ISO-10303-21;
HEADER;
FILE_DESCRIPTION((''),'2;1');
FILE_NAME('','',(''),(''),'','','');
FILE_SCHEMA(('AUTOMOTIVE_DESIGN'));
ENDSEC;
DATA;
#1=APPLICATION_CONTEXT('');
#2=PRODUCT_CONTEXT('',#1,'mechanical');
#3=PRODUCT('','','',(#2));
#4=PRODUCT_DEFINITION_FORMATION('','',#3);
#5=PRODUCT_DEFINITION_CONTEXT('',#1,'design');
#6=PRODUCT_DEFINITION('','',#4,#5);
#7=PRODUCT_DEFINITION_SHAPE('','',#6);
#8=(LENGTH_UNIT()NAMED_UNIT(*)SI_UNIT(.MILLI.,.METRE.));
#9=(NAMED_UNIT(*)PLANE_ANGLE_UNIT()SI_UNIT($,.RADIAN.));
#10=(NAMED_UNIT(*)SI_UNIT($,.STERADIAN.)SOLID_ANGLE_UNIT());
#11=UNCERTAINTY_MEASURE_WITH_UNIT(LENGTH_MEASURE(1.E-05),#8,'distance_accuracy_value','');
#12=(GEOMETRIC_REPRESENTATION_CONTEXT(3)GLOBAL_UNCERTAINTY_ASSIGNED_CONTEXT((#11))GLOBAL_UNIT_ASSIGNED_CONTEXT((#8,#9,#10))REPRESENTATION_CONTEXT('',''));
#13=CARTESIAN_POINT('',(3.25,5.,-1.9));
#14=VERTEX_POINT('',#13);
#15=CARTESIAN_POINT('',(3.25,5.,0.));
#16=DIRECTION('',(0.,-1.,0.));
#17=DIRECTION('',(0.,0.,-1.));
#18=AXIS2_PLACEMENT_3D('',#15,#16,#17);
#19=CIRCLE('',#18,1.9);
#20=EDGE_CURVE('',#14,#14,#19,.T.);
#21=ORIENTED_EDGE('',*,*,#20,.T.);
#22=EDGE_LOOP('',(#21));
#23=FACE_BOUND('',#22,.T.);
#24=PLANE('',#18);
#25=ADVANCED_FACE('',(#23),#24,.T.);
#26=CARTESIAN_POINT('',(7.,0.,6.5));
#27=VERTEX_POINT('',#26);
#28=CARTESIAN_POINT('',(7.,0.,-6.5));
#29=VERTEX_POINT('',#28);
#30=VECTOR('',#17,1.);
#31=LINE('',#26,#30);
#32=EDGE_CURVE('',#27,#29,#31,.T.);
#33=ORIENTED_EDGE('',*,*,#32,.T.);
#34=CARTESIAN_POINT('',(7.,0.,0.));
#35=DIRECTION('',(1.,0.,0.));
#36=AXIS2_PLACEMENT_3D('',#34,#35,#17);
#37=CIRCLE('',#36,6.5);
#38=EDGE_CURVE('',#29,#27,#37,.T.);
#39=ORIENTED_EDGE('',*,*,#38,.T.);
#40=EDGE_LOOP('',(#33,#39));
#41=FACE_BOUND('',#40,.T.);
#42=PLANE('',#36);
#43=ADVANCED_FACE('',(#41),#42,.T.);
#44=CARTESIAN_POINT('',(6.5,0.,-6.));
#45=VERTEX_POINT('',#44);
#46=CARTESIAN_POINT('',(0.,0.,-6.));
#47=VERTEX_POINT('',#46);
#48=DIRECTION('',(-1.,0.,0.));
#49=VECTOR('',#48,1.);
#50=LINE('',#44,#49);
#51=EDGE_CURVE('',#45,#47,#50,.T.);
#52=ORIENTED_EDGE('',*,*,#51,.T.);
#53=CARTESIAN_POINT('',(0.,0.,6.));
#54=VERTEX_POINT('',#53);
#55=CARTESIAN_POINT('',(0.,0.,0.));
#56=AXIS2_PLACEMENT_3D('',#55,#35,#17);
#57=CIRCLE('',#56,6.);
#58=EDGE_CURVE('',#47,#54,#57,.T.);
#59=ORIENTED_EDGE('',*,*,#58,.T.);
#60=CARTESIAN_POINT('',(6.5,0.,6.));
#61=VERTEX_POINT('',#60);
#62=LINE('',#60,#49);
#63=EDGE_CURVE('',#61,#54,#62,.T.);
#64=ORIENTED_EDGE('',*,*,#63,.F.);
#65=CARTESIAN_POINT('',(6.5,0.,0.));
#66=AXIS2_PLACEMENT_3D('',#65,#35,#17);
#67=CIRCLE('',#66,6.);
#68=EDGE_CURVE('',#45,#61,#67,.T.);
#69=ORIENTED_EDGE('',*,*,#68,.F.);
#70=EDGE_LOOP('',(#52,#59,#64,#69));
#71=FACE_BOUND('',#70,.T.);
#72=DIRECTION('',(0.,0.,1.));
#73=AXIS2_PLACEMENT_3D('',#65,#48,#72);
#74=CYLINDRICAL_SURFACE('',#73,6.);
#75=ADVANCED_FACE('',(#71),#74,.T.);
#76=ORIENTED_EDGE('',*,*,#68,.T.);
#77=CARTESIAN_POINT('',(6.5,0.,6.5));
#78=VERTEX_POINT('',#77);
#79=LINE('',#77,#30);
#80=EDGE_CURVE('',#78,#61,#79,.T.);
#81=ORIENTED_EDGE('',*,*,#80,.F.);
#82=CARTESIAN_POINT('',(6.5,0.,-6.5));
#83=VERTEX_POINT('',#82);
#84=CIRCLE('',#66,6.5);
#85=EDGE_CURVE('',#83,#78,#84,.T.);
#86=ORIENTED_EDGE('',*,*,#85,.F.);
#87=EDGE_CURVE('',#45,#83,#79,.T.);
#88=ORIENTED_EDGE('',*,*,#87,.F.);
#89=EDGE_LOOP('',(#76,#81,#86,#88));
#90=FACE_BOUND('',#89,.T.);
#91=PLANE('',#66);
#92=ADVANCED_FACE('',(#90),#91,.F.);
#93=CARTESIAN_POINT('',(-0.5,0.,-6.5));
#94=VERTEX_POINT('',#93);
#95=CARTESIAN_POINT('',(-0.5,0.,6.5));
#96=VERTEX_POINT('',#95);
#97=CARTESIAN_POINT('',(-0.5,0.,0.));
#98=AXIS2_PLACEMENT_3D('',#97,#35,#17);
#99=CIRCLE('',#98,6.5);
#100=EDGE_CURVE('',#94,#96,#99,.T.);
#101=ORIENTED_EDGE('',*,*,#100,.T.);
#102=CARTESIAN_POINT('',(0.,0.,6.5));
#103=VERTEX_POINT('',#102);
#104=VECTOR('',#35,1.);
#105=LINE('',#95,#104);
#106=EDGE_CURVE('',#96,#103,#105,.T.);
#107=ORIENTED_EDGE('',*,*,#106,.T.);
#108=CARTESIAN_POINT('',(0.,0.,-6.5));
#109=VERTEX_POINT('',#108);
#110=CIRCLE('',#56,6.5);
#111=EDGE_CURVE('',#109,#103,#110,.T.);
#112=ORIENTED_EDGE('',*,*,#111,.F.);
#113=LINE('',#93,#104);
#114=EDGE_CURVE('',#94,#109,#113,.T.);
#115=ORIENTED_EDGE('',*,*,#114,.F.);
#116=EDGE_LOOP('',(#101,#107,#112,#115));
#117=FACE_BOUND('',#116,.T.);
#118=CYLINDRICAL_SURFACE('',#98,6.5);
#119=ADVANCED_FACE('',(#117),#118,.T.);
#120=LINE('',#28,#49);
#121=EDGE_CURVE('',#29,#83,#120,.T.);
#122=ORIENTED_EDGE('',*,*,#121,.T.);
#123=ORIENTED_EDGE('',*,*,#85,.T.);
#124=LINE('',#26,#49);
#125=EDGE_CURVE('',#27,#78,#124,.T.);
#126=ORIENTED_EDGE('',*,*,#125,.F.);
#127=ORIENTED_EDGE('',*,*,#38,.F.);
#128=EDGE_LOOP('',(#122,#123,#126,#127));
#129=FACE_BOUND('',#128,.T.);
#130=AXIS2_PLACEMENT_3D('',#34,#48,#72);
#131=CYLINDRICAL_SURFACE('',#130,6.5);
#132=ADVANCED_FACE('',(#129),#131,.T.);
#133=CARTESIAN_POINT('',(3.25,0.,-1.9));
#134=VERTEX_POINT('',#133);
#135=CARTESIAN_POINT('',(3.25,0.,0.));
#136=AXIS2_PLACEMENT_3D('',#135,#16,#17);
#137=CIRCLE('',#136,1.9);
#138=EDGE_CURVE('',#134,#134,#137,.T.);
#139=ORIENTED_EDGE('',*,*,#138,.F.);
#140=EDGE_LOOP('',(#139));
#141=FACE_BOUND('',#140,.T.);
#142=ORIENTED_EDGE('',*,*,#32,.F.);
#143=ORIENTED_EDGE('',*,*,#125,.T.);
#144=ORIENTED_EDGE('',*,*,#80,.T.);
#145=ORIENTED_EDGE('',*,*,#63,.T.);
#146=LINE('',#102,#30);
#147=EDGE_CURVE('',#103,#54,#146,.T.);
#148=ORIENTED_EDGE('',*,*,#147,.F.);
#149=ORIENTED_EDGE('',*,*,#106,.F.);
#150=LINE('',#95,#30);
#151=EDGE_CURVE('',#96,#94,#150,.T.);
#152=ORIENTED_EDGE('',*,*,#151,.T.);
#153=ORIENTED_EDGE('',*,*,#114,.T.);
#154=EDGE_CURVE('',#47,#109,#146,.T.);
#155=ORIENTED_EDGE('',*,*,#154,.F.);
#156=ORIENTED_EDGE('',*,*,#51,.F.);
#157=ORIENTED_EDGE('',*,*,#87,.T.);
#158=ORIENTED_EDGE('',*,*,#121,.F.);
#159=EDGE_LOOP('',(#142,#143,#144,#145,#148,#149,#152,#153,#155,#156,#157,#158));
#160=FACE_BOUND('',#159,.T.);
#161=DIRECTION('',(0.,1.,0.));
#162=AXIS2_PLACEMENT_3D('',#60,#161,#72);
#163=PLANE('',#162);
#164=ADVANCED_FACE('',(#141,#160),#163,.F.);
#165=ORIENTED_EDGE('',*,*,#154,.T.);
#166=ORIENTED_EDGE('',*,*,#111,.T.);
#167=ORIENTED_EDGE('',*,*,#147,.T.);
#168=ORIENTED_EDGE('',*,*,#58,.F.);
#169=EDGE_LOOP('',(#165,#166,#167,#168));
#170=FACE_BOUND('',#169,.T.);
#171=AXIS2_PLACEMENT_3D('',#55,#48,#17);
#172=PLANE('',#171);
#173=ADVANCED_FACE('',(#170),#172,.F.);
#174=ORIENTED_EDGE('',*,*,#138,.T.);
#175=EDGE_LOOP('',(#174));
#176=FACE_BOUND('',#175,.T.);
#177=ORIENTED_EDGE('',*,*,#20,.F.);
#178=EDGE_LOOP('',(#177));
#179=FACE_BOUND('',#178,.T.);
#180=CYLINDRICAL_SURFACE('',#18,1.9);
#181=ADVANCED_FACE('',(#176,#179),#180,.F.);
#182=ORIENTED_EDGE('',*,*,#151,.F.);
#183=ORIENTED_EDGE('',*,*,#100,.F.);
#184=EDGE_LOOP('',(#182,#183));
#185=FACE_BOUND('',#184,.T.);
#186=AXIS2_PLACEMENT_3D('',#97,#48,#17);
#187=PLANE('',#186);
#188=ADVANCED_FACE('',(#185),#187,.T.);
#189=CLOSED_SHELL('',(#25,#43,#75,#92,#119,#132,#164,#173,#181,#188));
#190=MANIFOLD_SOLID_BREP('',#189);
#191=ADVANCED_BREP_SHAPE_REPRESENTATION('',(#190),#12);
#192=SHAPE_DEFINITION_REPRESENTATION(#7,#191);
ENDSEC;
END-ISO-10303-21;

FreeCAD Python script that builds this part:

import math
import FreeCAD as App
import Part
import Sketcher
Q = App.Units.Quantity

doc = App.newDocument("Part")
params = doc.addObject("Spreadsheet::Sheet", "Params")
for row, (alias, value) in enumerate([
    ("sketch1_radius", "6 mm"),
    ("pad1_length", "6.5 mm"),
    ("sketch2_radius", "6.5 mm"),
    ("pad2_length", "0.5 mm"),
    ("sketch3_diameter", "3.8 mm"),
    ("pocket1_length", "5 mm"),
], start=1):
    params.set(f"A{row}", alias)
    params.set(f"B{row}", "=" + value)
    params.setAlias(f"B{row}", alias)

body = doc.addObject("PartDesign::Body", "Body")

# Sketch on YZ plane
sketch1 = body.newObject("Sketcher::SketchObject", "Sketch")
sketch1.AttachmentSupport = (doc.getObject("YZ_Plane"), [""])
sketch1.MapMode = "FlatFace"
sketch1.addGeometry(Part.LineSegment(App.Vector(0, 6, 0), App.Vector(0, -6, 0)), False)
sketch1.addGeometry(Part.ArcOfCircle(Part.Circle(App.Vector(0, 0, 0), App.Vector(0, 0, 1), 6), math.radians(-90), math.radians(90)), False)
sketch1.addConstraint(Sketcher.Constraint("Coincident", 0, 1, 1, 2))
sketch1.addConstraint(Sketcher.Constraint("Coincident", 1, 1, 0, 2))
sketch1.addConstraint(Sketcher.Constraint("Vertical", 0))
sketch1.addConstraint(Sketcher.Constraint("Coincident", 1, 3, -1, 1))
sketch1.addConstraint(Sketcher.Constraint("PointOnObject", 0, 1, -2))
sketch1.addConstraint(Sketcher.Constraint("Radius", 1, Q("6 mm")))
sketch1.setExpression("Constraints[5]", "Params.sketch1_radius")
pad1 = body.newObject("PartDesign::Pad", "Pad")
pad1.Profile = sketch1
pad1.setExpression("Length", "Params.pad1_length")

# Sketch on YZ plane
sketch2 = body.newObject("Sketcher::SketchObject", "Sketch001")
sketch2.AttachmentSupport = (doc.getObject("YZ_Plane"), [""])
sketch2.MapMode = "FlatFace"
sketch2.AttachmentOffset = App.Placement(App.Vector(0, 0, 6.5), App.Rotation())
sketch2.addGeometry(Part.LineSegment(App.Vector(0, 6.5, 0), App.Vector(0, -6.5, 0)), False)
sketch2.addGeometry(Part.ArcOfCircle(Part.Circle(App.Vector(0, 0, 0), App.Vector(0, 0, 1), 6.5), math.radians(-90), math.radians(90)), False)
sketch2.addConstraint(Sketcher.Constraint("Coincident", 0, 1, 1, 2))
sketch2.addConstraint(Sketcher.Constraint("Coincident", 1, 1, 0, 2))
sketch2.addConstraint(Sketcher.Constraint("Vertical", 0))
sketch2.addConstraint(Sketcher.Constraint("Coincident", 1, 3, -1, 1))
sketch2.addConstraint(Sketcher.Constraint("PointOnObject", 0, 1, -2))
sketch2.addConstraint(Sketcher.Constraint("Radius", 1, Q("6.5 mm")))
sketch2.setExpression("Constraints[5]", "Params.sketch2_radius")
pad2 = body.newObject("PartDesign::Pad", "Pad001")
pad2.Profile = sketch2
pad2.setExpression("Length", "Params.pad2_length")
doc.recompute()

datumplane = body.newObject("PartDesign::Plane", "DatumPlane")
datumplane.AttachmentSupport = (doc.getObject("YZ_Plane"), [""])
datumplane.MapMode = "FlatFace"
datumplane.AttachmentOffset = App.Placement(App.Vector(0, 0, 3.25), App.Rotation())
mirrored = body.newObject("PartDesign::Mirrored", "Mirrored")
mirrored.Originals = [pad2]
mirrored.MirrorPlane = (datumplane, [""])
body.Tip = mirrored

# Sketch on XZ plane
sketch3 = body.newObject("Sketcher::SketchObject", "Sketch002")
sketch3.AttachmentSupport = (doc.getObject("XZ_Plane"), [""])
sketch3.MapMode = "FlatFace"
sketch3.addGeometry(Part.Circle(App.Vector(3.25, 0, 0), App.Vector(0, 0, 1), 1.9), False)
sketch3.addConstraint(Sketcher.Constraint("PointOnObject", 0, 3, -1))
sketch3.addConstraint(Sketcher.Constraint("Diameter", 0, Q("3.8 mm")))
sketch3.addConstraint(Sketcher.Constraint("DistanceX", -1, 1, 0, 3, Q("3.25 mm")))
sketch3.setExpression("Constraints[1]", "Params.sketch3_diameter")
pocket1 = body.newObject("PartDesign::Pocket", "Pocket")
pocket1.Profile = sketch3
pocket1.setExpression("Length", "Params.pocket1_length")

doc.recompute()
